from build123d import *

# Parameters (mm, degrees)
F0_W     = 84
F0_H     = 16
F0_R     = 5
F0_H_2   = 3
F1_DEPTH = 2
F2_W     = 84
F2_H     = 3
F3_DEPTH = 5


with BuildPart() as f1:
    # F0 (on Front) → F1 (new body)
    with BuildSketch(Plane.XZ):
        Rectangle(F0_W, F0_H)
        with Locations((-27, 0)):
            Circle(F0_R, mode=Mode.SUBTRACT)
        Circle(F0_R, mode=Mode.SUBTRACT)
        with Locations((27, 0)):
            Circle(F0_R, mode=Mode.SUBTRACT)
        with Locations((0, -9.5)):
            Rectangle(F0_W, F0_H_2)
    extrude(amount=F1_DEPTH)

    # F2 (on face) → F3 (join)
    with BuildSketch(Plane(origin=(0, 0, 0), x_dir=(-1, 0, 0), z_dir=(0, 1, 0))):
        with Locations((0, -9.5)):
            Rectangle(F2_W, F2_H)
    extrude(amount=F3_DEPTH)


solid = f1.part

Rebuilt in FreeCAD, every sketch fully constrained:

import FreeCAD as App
import Part
import Sketcher

V = App.Vector


def add_polygon(sketch, points):
    """Adds a closed chain of lines whose ends are joined by coincident constraints."""
    first, n = sketch.GeometryCount, len(points)
    for a, b in zip(points, points[1:] + points[:1]):
        sketch.addGeometry(Part.LineSegment(App.Vector(*a, 0), App.Vector(*b, 0)), False)
    for i in range(n):
        sketch.addConstraint(Sketcher.Constraint("Coincident", first + i, 2, first + (i + 1) % n, 1))

doc = App.newDocument("Part")
body = doc.addObject("PartDesign::Body", "Body")

sketch1 = body.newObject("Sketcher::SketchObject", "Sketch")
sketch1.AttachmentSupport = (doc.getObject("XZ_Plane"), [""])
sketch1.MapMode = "FlatFace"
add_polygon(sketch1, [(-42, 8), (-42, -11), (42, -11), (42, 8)])
sketch1.addGeometry(Part.Circle(V(-27, 0, 0), V(0, 0, 1), 5), False)
sketch1.addGeometry(Part.Circle(V(0, 0, 0), V(0, 0, 1), 5), False)
sketch1.addGeometry(Part.Circle(V(27, 0, 0), V(0, 0, 1), 5), False)
sketch1.addConstraint([
    Sketcher.Constraint("Vertical", 0),
    Sketcher.Constraint("Horizontal", 1),
    Sketcher.Constraint("Vertical", 2),
    Sketcher.Constraint("Horizontal", 3),
    Sketcher.Constraint("Coincident", 5, 3, -1, 1),
    Sketcher.Constraint("Equal", 4, 5),
    Sketcher.Constraint("Equal", 5, 6),
    Sketcher.Constraint("Symmetric", 4, 3, 6, 3, -1, 1),
    Sketcher.Constraint("PointOnObject", 4, 3, -1),
    Sketcher.Constraint("Diameter", 4, 10.0),
    Sketcher.Constraint("DistanceX", 1, 1, 1, 2, 84.0),
    Sketcher.Constraint("DistanceY", 0, 2, 0, 1, 19.0),
    Sketcher.Constraint("DistanceX", 4, 3, -1, 1, 27.0),
    Sketcher.Constraint("DistanceX", 0, 2, -1, 1, 42.0),
    Sketcher.Constraint("DistanceY", 0, 2, -1, 1, 11.0),
])
pad1 = body.newObject("PartDesign::Pad", "Pad")
pad1.Profile = sketch1
pad1.Length = 2

sketch2 = body.newObject("Sketcher::SketchObject", "Sketch001")
sketch2.AttachmentSupport = (doc.getObject("XZ_Plane"), [""])
sketch2.MapMode = "FlatFace"
add_polygon(sketch2, [(42, -8), (42, -11), (-42, -11), (-42, -8)])
sketch2.addConstraint([
    Sketcher.Constraint("Vertical", 0),
    Sketcher.Constraint("Horizontal", 1),
    Sketcher.Constraint("Vertical", 2),
    Sketcher.Constraint("Horizontal", 3),
    Sketcher.Constraint("DistanceX", 1, 2, 1, 1, 84.0),
    Sketcher.Constraint("DistanceY", 0, 2, 0, 1, 3.0),
    Sketcher.Constraint("DistanceX", -1, 1, 0, 2, 42.0),
    Sketcher.Constraint("DistanceY", 0, 2, -1, 1, 11.0),
])
pad2 = body.newObject("PartDesign::Pad", "Pad001")
pad2.Profile = sketch2
pad2.Length = 5
pad2.Reversed = True

doc.recompute()
